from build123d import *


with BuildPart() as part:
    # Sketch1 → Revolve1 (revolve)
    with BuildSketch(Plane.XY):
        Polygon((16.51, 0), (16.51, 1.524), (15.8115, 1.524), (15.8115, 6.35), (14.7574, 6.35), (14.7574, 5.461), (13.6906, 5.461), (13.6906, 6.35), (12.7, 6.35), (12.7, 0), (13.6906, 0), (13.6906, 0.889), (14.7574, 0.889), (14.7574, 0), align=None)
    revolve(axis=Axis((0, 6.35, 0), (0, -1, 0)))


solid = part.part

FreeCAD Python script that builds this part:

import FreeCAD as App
import Part
import Sketcher

V = App.Vector
Q = App.Units.Quantity

doc = App.newDocument("Part")
body = doc.addObject("PartDesign::Body", "Body")

# Sketch on XY plane
sketch1 = body.newObject("Sketcher::SketchObject", "Sketch")
sketch1.AttachmentSupport = (doc.getObject("XY_Plane"), [""])
sketch1.MapMode = "FlatFace"
sketch1.addGeometry([
    Part.LineSegment(V(16.51, 0, 0), V(16.51, 1.524, 0)),  # 0
    Part.LineSegment(V(16.51, 1.524, 0), V(15.8115, 1.524, 0)),  # 1
    Part.LineSegment(V(15.8115, 1.524, 0), V(15.8115, 6.35, 0)),  # 2
    Part.LineSegment(V(15.8115, 6.35, 0), V(14.7574, 6.35, 0)),  # 3
    Part.LineSegment(V(14.7574, 6.35, 0), V(14.7574, 5.461, 0)),  # 4
    Part.LineSegment(V(14.7574, 5.461, 0), V(13.6906, 5.461, 0)),  # 5
    Part.LineSegment(V(13.6906, 5.461, 0), V(13.6906, 6.35, 0)),  # 6
    Part.LineSegment(V(13.6906, 6.35, 0), V(12.7, 6.35, 0)),  # 7
    Part.LineSegment(V(12.7, 6.35, 0), V(12.7, 0, 0)),  # 8
    Part.LineSegment(V(12.7, 0, 0), V(13.6906, 0, 0)),  # 9
    Part.LineSegment(V(13.6906, 0, 0), V(13.6906, 0.889, 0)),  # 10
    Part.LineSegment(V(13.6906, 0.889, 0), V(14.7574, 0.889, 0)),  # 11
    Part.LineSegment(V(14.7574, 0.889, 0), V(14.7574, 0, 0)),  # 12
    Part.LineSegment(V(14.7574, 0, 0), V(16.51, 0, 0)),  # 13
], False)
sketch1.addConstraint([
    Sketcher.Constraint("Coincident", 0, 2, 1, 1),
    Sketcher.Constraint("Coincident", 1, 2, 2, 1),
    Sketcher.Constraint("Coincident", 2, 2, 3, 1),
    Sketcher.Constraint("Coincident", 3, 2, 4, 1),
    Sketcher.Constraint("Coincident", 4, 2, 5, 1),
    Sketcher.Constraint("Coincident", 5, 2, 6, 1),
    Sketcher.Constraint("Coincident", 6, 2, 7, 1),
    Sketcher.Constraint("Coincident", 7, 2, 8, 1),
    Sketcher.Constraint("Coincident", 8, 2, 9, 1),
    Sketcher.Constraint("Coincident", 9, 2, 10, 1),
    Sketcher.Constraint("Coincident", 10, 2, 11, 1),
    Sketcher.Constraint("Coincident", 11, 2, 12, 1),
    Sketcher.Constraint("Coincident", 12, 2, 13, 1),
    Sketcher.Constraint("Coincident", 13, 2, 0, 1),
    Sketcher.Constraint("Vertical", 0),
    Sketcher.Constraint("Horizontal", 1),
    Sketcher.Constraint("Vertical", 2),
    Sketcher.Constraint("Horizontal", 3),
    Sketcher.Constraint("Vertical", 4),
    Sketcher.Constraint("Horizontal", 5),
    Sketcher.Constraint("Vertical", 6),
    Sketcher.Constraint("Horizontal", 7),
    Sketcher.Constraint("Vertical", 8),
    Sketcher.Constraint("Horizontal", 9),
    Sketcher.Constraint("Vertical", 10),
    Sketcher.Constraint("Horizontal", 11),
    Sketcher.Constraint("Vertical", 12),
    Sketcher.Constraint("Horizontal", 13),
    Sketcher.Constraint("PointOnObject", 8, 2, -1),
    Sketcher.Constraint("PointOnObject", 12, 2, -1),
    Sketcher.Constraint("Horizontal", 3, 2, 6, 2),
    Sketcher.Constraint("Vertical", 6, 2, 9, 2),
    Sketcher.Constraint("Vertical", 4, 2, 11, 2),
    Sketcher.Constraint("Equal", 6, 10),
    Sketcher.Constraint("DistanceY", 0, 1, 0, 2, Q("0.06 in")),
    Sketcher.Constraint("DistanceY", 2, 1, 2, 2, Q("0.19 in")),
    Sketcher.Constraint("DistanceX", -1, 1, 7, 2, Q("0.5 in")),
    Sketcher.Constraint("DistanceX", 5, 2, 5, 1, Q("0.042 in")),
    Sketcher.Constraint("DistanceX", 7, 2, 7, 1, Q("0.039 in")),
    Sketcher.Constraint("DistanceX", 13, 1, 13, 2, Q("0.069 in")),
    Sketcher.Constraint("DistanceY", 4, 2, 4, 1, Q("0.035 in")),
    Sketcher.Constraint("DistanceX", 1, 2, 1, 1, Q("0.0275 in")),
])
revolution = body.newObject("PartDesign::Revolution", "Revolution")
revolution.Profile = sketch1
revolution.ReferenceAxis = (sketch1, ["V_Axis"])
revolution.Angle = 360

doc.recompute()
